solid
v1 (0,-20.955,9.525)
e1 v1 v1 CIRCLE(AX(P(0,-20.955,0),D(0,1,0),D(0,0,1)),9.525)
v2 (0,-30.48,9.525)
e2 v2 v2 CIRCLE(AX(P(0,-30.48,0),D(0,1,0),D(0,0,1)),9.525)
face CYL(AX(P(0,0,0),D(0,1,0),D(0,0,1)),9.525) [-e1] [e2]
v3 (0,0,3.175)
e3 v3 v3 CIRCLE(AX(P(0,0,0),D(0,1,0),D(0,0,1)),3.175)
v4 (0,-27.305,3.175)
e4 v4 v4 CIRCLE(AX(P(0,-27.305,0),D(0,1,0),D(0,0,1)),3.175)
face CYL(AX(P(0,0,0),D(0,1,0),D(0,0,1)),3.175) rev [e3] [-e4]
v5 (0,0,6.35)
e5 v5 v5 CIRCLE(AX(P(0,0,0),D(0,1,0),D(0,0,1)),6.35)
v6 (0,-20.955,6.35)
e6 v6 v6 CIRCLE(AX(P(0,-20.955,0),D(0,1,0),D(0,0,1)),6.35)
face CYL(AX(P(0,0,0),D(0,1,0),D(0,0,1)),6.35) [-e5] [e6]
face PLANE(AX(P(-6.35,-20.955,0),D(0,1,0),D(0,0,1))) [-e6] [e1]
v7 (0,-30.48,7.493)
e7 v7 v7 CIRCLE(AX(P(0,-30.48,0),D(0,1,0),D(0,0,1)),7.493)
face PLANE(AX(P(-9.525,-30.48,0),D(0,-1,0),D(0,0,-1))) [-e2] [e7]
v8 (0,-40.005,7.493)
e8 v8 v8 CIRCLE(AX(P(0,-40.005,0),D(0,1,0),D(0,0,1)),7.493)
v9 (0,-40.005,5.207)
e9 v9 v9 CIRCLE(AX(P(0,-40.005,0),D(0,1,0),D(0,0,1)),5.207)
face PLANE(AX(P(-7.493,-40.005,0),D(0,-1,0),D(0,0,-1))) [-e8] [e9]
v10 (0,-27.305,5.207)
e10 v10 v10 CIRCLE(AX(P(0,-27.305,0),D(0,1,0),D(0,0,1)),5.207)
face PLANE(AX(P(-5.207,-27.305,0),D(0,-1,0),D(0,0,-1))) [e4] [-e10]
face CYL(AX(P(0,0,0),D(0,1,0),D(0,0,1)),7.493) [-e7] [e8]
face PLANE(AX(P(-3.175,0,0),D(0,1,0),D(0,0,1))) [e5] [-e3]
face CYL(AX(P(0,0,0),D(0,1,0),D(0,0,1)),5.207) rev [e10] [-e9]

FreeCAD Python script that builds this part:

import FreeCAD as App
import Part
import Sketcher
Q = App.Units.Quantity

doc = App.newDocument("Part")
body = doc.addObject("PartDesign::Body", "Body")

sketch1 = doc.addObject("Sketcher::SketchObject", "Sketch")
body.addObject(sketch1)
sketch1.AttachmentSupport = (doc.XY_Plane, [""])
sketch1.MapMode = "FlatFace"
sketch1.addGeometry([
    Part.LineSegment(App.Vector(-3.2, 0, 0), App.Vector(-6.3, 0, 0)),
    Part.LineSegment(App.Vector(-6.3, 0, 0), App.Vector(-6.3, -21, 0)),
    Part.LineSegment(App.Vector(-6.3, -21, 0), App.Vector(-9.5, -21, 0)),
    Part.LineSegment(App.Vector(-9.5, -21, 0), App.Vector(-9.5, -30.5, 0)),
    Part.LineSegment(App.Vector(-9.5, -30.5, 0), App.Vector(-7.5, -30.5, 0)),
    Part.LineSegment(App.Vector(-7.5, -30.5, 0), App.Vector(-7.5, -40, 0)),
    Part.LineSegment(App.Vector(-7.5, -40, 0), App.Vector(-5.2, -40, 0)),
    Part.LineSegment(App.Vector(-5.2, -40, 0), App.Vector(-5.2, -27.3, 0)),
    Part.LineSegment(App.Vector(-5.2, -27.3, 0), App.Vector(-3.2, -27.3, 0)),
    Part.LineSegment(App.Vector(-3.2, -27.3, 0), App.Vector(-3.2, 0, 0)),
], False)
sketch1.addConstraint([
    Sketcher.Constraint("Coincident", 0, 2, 1, 1),
    Sketcher.Constraint("Coincident", 1, 2, 2, 1),
    Sketcher.Constraint("Coincident", 2, 2, 3, 1),
    Sketcher.Constraint("Coincident", 3, 2, 4, 1),
    Sketcher.Constraint("Coincident", 4, 2, 5, 1),
    Sketcher.Constraint("Coincident", 5, 2, 6, 1),
    Sketcher.Constraint("Coincident", 6, 2, 7, 1),
    Sketcher.Constraint("Coincident", 7, 2, 8, 1),
    Sketcher.Constraint("Coincident", 8, 2, 9, 1),
    Sketcher.Constraint("Coincident", 9, 2, 0, 1),
    Sketcher.Constraint("Horizontal", 0),
    Sketcher.Constraint("Vertical", 1),
    Sketcher.Constraint("Horizontal", 2),
    Sketcher.Constraint("Vertical", 3),
    Sketcher.Constraint("Horizontal", 4),
    Sketcher.Constraint("Vertical", 5),
    Sketcher.Constraint("Horizontal", 6),
    Sketcher.Constraint("Vertical", 7),
    Sketcher.Constraint("Horizontal", 8),
    Sketcher.Constraint("Vertical", 9),
    Sketcher.Constraint("PointOnObject", 0, 2, -1),
    Sketcher.Constraint("Equal", 0, 2),
    Sketcher.Constraint("Equal", 4, 8),
    Sketcher.Constraint("Equal", 3, 5),
    Sketcher.Constraint("DistanceY", 7, 1, 7, 2, Q("0.5 in")),
    Sketcher.Constraint("DistanceX", 4, 1, 4, 2, Q("0.08 in")),
    Sketcher.Constraint("DistanceX", 6, 1, 6, 2, Q("0.09 in")),
    Sketcher.Constraint("DistanceY", 3, 2, -1, 1, Q("1.2 in")),
    Sketcher.Constraint("DistanceY", 1, 2, 1, 1, Q("0.825 in")),
    Sketcher.Constraint("DistanceX", 0, 2, -1, 1, Q("0.25 in")),
])
revolution = doc.addObject("PartDesign::Revolution", "Revolution")
body.addObject(revolution)
revolution.Profile = sketch1
revolution.ReferenceAxis = (sketch1, ["V_Axis"])
revolution.Angle = 360

doc.recompute()
